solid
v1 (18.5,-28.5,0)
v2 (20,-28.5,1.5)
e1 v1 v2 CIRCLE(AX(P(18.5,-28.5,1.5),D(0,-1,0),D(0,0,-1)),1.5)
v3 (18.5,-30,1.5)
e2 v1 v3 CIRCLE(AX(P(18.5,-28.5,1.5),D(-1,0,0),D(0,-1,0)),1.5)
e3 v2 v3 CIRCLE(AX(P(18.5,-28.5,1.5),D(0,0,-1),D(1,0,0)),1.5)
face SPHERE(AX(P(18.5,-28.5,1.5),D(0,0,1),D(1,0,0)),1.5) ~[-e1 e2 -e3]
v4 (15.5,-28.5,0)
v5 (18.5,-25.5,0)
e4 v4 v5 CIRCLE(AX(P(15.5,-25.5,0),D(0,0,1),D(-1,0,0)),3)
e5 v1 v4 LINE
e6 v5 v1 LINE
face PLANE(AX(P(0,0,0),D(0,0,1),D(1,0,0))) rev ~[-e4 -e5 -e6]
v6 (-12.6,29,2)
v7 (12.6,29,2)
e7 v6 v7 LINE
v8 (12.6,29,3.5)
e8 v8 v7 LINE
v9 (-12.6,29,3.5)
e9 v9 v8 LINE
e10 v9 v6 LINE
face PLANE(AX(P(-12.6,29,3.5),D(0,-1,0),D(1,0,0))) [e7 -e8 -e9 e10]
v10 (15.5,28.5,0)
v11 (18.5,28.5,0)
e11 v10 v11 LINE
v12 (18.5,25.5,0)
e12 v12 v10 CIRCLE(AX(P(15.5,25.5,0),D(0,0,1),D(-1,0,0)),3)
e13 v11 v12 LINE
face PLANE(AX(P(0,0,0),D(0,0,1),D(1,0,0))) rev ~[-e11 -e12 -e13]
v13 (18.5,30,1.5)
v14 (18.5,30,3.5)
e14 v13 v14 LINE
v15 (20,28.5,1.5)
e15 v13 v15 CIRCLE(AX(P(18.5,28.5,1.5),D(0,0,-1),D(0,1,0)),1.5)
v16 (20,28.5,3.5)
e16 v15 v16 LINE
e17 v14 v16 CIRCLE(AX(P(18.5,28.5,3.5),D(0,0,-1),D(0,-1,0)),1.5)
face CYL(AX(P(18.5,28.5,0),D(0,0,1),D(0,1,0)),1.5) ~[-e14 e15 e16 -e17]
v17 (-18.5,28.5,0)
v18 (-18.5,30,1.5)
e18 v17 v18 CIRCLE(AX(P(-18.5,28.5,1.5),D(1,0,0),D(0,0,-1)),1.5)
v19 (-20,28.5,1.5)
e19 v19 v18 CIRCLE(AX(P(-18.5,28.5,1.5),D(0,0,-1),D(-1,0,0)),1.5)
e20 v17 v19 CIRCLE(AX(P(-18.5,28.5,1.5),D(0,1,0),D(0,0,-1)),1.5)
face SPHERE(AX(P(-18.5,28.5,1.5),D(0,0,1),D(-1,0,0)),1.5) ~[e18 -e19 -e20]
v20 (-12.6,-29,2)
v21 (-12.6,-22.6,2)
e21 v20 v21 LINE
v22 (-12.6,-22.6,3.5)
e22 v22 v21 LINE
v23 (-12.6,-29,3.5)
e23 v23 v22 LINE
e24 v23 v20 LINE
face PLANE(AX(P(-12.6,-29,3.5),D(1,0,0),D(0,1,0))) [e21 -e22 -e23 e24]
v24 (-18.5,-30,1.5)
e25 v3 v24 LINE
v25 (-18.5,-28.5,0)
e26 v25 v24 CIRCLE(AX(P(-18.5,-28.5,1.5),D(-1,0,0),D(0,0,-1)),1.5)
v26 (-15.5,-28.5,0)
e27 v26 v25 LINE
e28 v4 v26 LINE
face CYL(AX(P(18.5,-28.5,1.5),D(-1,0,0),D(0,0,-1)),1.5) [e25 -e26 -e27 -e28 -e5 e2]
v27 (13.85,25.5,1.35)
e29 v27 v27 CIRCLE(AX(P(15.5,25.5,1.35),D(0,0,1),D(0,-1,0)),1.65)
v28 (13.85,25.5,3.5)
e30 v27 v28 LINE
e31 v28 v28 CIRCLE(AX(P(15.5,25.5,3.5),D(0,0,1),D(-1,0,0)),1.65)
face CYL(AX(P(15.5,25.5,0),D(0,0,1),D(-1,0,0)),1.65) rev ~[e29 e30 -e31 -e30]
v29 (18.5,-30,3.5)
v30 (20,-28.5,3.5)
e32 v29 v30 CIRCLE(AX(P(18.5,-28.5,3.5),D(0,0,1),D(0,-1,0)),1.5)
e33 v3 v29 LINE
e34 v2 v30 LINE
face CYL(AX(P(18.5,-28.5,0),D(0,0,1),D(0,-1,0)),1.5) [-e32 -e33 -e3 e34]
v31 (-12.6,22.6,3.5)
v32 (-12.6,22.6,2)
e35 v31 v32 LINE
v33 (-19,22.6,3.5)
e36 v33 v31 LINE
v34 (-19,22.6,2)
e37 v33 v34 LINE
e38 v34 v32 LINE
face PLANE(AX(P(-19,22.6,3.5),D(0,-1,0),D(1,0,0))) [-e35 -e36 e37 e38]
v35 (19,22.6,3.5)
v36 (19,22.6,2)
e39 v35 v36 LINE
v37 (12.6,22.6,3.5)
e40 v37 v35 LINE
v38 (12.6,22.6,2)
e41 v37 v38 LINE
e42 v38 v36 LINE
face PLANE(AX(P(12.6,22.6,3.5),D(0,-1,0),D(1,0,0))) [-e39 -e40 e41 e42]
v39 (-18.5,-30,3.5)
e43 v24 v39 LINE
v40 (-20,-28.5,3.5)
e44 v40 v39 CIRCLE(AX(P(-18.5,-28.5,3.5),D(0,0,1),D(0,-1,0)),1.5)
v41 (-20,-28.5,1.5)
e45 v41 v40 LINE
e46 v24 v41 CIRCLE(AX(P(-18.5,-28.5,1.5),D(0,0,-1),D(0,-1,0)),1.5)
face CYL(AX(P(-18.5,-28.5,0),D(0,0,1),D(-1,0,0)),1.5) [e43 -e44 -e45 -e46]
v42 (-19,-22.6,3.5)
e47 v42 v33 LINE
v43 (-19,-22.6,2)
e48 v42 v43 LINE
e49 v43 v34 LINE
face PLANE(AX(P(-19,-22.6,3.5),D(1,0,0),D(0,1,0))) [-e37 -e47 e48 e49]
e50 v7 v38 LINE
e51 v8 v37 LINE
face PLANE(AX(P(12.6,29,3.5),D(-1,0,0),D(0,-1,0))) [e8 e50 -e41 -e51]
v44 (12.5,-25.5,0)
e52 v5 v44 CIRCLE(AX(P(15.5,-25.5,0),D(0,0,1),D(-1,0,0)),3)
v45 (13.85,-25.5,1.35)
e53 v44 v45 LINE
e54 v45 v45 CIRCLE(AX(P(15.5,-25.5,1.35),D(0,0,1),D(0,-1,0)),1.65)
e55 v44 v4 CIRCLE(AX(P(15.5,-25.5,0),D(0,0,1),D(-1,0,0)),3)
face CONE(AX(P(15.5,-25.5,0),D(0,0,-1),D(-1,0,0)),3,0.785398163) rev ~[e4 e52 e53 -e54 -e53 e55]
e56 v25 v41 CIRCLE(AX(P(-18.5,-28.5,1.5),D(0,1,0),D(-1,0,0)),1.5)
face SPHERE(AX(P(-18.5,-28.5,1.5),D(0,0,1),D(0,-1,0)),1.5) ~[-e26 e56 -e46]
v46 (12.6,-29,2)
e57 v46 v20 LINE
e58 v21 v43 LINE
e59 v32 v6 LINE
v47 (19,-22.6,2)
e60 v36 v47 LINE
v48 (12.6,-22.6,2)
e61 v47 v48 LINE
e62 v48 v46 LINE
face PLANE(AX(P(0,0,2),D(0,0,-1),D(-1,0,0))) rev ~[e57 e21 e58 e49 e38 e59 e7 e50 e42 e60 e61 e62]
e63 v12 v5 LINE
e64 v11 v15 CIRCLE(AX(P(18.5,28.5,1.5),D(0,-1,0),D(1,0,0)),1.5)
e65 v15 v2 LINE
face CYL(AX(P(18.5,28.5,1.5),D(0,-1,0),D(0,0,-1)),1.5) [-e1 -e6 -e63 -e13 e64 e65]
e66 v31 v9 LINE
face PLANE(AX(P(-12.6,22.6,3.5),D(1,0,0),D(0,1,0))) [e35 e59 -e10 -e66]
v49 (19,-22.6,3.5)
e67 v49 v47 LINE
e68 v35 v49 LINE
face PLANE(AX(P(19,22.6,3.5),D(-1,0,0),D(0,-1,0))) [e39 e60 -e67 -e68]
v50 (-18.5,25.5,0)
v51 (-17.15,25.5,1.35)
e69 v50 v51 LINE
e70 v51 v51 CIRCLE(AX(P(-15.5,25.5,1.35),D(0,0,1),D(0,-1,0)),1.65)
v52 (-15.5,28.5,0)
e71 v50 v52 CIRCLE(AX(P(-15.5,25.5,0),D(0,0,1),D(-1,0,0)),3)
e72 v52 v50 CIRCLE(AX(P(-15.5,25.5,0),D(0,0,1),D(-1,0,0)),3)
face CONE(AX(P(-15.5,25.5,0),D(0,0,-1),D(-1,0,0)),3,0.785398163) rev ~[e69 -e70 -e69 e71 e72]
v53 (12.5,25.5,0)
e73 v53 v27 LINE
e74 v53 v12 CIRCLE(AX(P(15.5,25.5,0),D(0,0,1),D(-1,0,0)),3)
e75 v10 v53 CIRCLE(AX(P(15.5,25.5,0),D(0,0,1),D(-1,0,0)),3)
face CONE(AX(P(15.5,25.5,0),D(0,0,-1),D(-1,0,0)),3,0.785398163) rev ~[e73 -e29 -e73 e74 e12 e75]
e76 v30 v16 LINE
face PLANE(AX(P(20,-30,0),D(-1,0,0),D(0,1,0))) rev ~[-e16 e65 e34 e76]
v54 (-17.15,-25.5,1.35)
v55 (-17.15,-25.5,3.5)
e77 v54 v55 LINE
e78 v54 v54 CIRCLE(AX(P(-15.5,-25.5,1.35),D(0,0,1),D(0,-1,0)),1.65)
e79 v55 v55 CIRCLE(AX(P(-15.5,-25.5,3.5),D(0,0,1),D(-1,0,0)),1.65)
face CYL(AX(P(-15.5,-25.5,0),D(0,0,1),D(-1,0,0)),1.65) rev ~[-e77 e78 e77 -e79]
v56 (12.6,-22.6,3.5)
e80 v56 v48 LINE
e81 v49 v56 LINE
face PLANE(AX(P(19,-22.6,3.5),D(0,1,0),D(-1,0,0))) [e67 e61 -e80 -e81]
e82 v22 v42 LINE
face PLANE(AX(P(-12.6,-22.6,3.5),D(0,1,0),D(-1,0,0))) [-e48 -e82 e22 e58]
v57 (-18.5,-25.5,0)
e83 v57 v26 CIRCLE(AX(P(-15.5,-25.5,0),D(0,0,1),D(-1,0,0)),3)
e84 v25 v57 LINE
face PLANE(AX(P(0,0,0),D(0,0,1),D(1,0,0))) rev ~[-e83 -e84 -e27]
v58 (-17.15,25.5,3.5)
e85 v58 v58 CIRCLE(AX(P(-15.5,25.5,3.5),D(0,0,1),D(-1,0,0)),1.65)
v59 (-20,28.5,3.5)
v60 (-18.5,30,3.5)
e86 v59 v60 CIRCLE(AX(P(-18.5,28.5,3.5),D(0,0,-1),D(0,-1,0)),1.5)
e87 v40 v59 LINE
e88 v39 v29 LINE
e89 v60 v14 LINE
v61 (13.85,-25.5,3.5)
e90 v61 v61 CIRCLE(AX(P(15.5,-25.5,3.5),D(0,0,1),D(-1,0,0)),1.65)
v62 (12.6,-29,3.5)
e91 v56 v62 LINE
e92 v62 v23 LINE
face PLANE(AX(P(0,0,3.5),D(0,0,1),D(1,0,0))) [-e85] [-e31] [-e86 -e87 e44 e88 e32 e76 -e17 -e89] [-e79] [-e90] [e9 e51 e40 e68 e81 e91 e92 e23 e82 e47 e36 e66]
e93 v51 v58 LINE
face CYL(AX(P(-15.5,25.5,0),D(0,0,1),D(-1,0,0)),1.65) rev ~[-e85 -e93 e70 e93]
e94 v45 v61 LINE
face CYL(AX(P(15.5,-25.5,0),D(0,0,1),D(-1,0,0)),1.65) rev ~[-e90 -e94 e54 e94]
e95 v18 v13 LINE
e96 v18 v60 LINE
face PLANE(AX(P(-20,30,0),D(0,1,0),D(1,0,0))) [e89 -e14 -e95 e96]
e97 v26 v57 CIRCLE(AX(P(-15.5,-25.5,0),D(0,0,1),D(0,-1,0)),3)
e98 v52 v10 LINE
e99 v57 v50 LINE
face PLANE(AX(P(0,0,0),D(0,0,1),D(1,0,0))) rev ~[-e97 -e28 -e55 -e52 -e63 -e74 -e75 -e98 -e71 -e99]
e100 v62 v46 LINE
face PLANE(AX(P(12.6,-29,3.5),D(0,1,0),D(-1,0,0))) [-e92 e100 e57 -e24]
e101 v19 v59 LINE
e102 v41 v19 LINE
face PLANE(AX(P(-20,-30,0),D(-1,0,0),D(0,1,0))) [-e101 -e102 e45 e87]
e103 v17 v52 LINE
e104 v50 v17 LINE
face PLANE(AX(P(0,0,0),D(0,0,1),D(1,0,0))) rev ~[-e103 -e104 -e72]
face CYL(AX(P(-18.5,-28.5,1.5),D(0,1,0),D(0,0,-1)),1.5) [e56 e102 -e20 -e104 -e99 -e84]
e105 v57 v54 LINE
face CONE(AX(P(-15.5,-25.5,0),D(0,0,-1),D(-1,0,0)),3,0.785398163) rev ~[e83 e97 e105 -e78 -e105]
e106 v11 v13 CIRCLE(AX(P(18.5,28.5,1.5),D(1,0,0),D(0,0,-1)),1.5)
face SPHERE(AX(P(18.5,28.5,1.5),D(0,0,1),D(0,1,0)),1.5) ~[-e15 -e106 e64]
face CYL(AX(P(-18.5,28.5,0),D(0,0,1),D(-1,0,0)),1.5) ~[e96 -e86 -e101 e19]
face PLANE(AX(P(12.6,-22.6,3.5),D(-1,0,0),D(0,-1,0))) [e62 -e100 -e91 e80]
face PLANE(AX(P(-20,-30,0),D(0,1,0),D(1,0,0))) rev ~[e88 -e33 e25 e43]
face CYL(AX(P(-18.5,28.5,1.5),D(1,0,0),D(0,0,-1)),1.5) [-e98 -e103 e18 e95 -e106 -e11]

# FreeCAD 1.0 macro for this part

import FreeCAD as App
import Part
import Sketcher
Q = App.Units.Quantity


def edges_at(feature, points):
    """Names of the edges that pass closest to the given points."""
    edges = feature.Shape.Edges
    near = lambda p: min(range(len(edges)), key=lambda i: edges[i].distToShape(Part.Vertex(*p))[0])
    return sorted({f"Edge{near(p) + 1}" for p in points})


def add_polygon(sketch, points):
    """Adds a closed chain of lines whose ends are joined by coincident constraints."""
    first, n = sketch.GeometryCount, len(points)
    for a, b in zip(points, points[1:] + points[:1]):
        sketch.addGeometry(Part.LineSegment(App.Vector(*a, 0), App.Vector(*b, 0)), False)
    for i in range(n):
        sketch.addConstraint(Sketcher.Constraint("Coincident", first + i, 2, first + (i + 1) % n, 1))

doc = App.newDocument("Part")
body = doc.addObject("PartDesign::Body", "Body")

# Sketch on XY plane
sketch1 = doc.addObject("Sketcher::SketchObject", "Sketch")
body.addObject(sketch1)
sketch1.AttachmentSupport = (doc.XY_Plane, [""])
sketch1.MapMode = "FlatFace"
add_polygon(sketch1, [(-20, 30), (-20, -30), (20, -30), (20, 30)])  # lines 0-3
sketch1.addConstraint([
    Sketcher.Constraint("Vertical", 0),
    Sketcher.Constraint("Horizontal", 1),
    Sketcher.Constraint("Vertical", 2),
    Sketcher.Constraint("Horizontal", 3),
    Sketcher.Constraint("Symmetric", 0, 2, 2, 2, -1, 1),
    Sketcher.Constraint("DistanceX", 1, 1, 1, 2, Q("40 mm")),
    Sketcher.Constraint("DistanceY", 0, 2, 0, 1, Q("60 mm")),
])
pad1 = doc.addObject("PartDesign::Pad", "Pad")
body.addObject(pad1)
pad1.Profile = sketch1
pad1.Length = 3.5

# Sketch on XY plane
sketch2 = doc.addObject("Sketcher::SketchObject", "Sketch001")
body.addObject(sketch2)
sketch2.AttachmentSupport = (doc.XY_Plane, [""])
sketch2.MapMode = "FlatFace"
sketch2.AttachmentOffset = App.Placement(App.Vector(0, 0, 3.5), App.Rotation())
add_polygon(sketch2, [(13, 29), (-13, 29), (-13, 23), (-19, 23), (-19, -23), (-13, -23), (-13, -29), (13, -29), (13, -23), (19, -23), (19, 23), (13, 23)])  # lines 0-11
sketch2.addConstraint([
    Sketcher.Constraint("Horizontal", 0),
    Sketcher.Constraint("Vertical", 1),
    Sketcher.Constraint("Horizontal", 2),
    Sketcher.Constraint("Vertical", 3),
    Sketcher.Constraint("Horizontal", 4),
    Sketcher.Constraint("Vertical", 5),
    Sketcher.Constraint("Horizontal", 6),
    Sketcher.Constraint("Vertical", 7),
    Sketcher.Constraint("Horizontal", 8),
    Sketcher.Constraint("Vertical", 9),
    Sketcher.Constraint("Horizontal", 10),
    Sketcher.Constraint("Vertical", 11),
    Sketcher.Constraint("Symmetric", 0, 2, 6, 2, -1, 1),
    Sketcher.Constraint("Symmetric", 2, 2, 8, 2, -1, 1),
    Sketcher.Constraint("Symmetric", 4, 2, 10, 2, -1, 1),
    Sketcher.Constraint("Symmetric", 4, 2, 7, 2, -2),
    Sketcher.Constraint("Equal", 10, 1),
    Sketcher.Constraint("DistanceX", 0, 2, 0, 1, Q("25.2 mm")),
    Sketcher.Constraint("DistanceX", 2, 2, 2, 1, Q("6.4 mm")),
    Sketcher.Constraint("DistanceY", 3, 2, 3, 1, Q("45.2 mm")),
])
pocket1 = doc.addObject("PartDesign::Pocket", "Pocket")
body.addObject(pocket1)
pocket1.Profile = sketch2
pocket1.Length = 1.5
doc.recompute()

fillet = doc.addObject("PartDesign::Fillet", "Fillet")
body.addObject(fillet)
fillet.Base = (pocket1, edges_at(pocket1, [
    (20, -30, 1.75),
    (-20, -30, 1.75),
    (20, 30, 1.75),
    (-20, 30, 1.75),
]))
fillet.Radius = 1.5
doc.recompute()

fillet2 = doc.addObject("PartDesign::Fillet", "Fillet001")
body.addObject(fillet2)
fillet2.Base = (fillet, edges_at(fillet, [
    (0, 30, 0),
    (-19.561, 29.561, 0),
    (19.561, 29.561, 0),
    (-20, 0, 0),
    (20, 0, 0),
    (-19.561, -29.561, 0),
    (19.561, -29.561, 0),
    (0, -30, 0),
]))
fillet2.Radius = 1.5

# Sketch on XY plane
sketch3 = doc.addObject("Sketcher::SketchObject", "Sketch002")
body.addObject(sketch3)
sketch3.AttachmentSupport = (doc.XY_Plane, [""])
sketch3.MapMode = "FlatFace"
sketch3.addGeometry([
    Part.Circle(App.Vector(15.5, -25.5, 0), App.Vector(0, 0, 1), 1.6),
    Part.Circle(App.Vector(15.5, 25.5, 0), App.Vector(0, 0, 1), 1.6),
    Part.Circle(App.Vector(-15.5, 25.5, 0), App.Vector(0, 0, 1), 1.6),
    Part.Circle(App.Vector(-15.5, -25.5, 0), App.Vector(0, 0, 1), 1.6),
], False)
sketch3.addConstraint([
    Sketcher.Constraint("Equal", 0, 1),
    Sketcher.Constraint("Equal", 1, 2),
    Sketcher.Constraint("Equal", 2, 3),
    Sketcher.Constraint("Symmetric", 0, 3, 2, 3, -1, 1),
    Sketcher.Constraint("Symmetric", 1, 3, 3, 3, -1, 1),
    Sketcher.Constraint("Symmetric", 1, 3, 2, 3, -2),
    Sketcher.Constraint("Diameter", 0, Q("3.3 mm")),
    Sketcher.Constraint("DistanceY", 0, 3, 1, 3, Q("51 mm")),
    Sketcher.Constraint("DistanceX", 2, 3, 1, 3, Q("31 mm")),
])
doc.recompute()
hole = doc.addObject("PartDesign::Hole", "Hole")
body.addObject(hole)
hole.Profile = sketch3
hole.ThreadType = "None"
hole.Diameter = 3.3
hole.DepthType = "Dimension"
hole.Depth = 25
hole.DrillPoint = "Flat"
hole.HoleCutType = "Countersink"
hole.HoleCutDiameter = 6
hole.HoleCutCountersinkAngle = 90
hole.Reversed = True

doc.recompute()
